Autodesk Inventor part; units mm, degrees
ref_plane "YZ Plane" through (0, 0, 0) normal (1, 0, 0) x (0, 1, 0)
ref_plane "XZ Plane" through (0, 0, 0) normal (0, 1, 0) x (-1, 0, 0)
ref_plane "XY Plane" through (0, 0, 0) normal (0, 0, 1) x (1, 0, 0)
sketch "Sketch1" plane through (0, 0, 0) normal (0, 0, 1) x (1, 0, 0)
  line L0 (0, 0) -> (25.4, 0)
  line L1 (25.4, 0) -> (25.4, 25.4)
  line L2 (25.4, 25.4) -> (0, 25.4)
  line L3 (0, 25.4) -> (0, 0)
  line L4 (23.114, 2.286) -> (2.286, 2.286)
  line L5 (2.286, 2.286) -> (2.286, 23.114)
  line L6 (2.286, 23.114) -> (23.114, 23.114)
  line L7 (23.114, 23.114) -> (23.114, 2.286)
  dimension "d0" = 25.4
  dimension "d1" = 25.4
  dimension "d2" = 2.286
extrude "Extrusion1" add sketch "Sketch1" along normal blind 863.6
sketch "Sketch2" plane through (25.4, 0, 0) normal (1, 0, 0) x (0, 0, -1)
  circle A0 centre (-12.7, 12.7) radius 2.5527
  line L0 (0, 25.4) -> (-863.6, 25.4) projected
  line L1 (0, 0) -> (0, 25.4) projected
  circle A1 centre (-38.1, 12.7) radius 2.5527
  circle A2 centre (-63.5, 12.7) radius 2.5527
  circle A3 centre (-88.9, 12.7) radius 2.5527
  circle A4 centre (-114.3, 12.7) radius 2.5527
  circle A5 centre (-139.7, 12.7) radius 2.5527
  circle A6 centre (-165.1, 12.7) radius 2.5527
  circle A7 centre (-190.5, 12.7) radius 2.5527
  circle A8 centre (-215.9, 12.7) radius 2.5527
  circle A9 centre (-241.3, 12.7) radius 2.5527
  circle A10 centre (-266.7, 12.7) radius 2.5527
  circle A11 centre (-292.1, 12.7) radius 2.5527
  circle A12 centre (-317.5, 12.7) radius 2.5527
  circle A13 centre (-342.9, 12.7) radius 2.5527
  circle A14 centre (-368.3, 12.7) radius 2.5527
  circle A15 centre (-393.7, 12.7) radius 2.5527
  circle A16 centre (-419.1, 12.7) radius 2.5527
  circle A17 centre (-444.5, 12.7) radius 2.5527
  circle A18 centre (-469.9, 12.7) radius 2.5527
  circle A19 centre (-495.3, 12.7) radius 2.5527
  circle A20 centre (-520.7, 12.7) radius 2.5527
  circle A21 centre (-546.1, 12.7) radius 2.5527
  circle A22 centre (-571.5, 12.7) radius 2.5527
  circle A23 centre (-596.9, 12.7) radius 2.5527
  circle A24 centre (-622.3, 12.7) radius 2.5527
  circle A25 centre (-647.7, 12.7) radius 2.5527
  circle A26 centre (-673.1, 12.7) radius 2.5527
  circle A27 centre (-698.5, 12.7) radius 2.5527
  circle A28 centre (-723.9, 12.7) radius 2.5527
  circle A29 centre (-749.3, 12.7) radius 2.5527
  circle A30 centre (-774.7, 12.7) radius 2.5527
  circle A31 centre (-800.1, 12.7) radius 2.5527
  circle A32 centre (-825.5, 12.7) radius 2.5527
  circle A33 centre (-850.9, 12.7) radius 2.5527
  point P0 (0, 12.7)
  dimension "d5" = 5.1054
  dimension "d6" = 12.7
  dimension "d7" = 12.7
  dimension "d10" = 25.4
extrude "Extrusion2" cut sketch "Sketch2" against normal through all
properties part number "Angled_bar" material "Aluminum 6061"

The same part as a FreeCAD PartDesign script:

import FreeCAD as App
import Part
import Sketcher
Q = App.Units.Quantity


def add_polygon(sketch, points):
    """Adds a closed chain of lines whose ends are joined by coincident constraints."""
    first, n = sketch.GeometryCount, len(points)
    for a, b in zip(points, points[1:] + points[:1]):
        sketch.addGeometry(Part.LineSegment(App.Vector(*a, 0), App.Vector(*b, 0)), False)
    for i in range(n):
        sketch.addConstraint(Sketcher.Constraint("Coincident", first + i, 2, first + (i + 1) % n, 1))

doc = App.newDocument("Part")
body = doc.addObject("PartDesign::Body", "Body")

# Sketch on XY plane
sketch1 = doc.addObject("Sketcher::SketchObject", "Sketch")
body.addObject(sketch1)
sketch1.AttachmentSupport = (doc.XY_Plane, [""])
sketch1.MapMode = "FlatFace"
add_polygon(sketch1, [(0, 25), (0, 0), (25, 0), (25, 25)])  # lines 0-3
add_polygon(sketch1, [(23, 23), (23, 2), (2, 2), (2, 23)])  # lines 4-7
sketch1.addConstraint(Sketcher.Constraint("Vertical", 0))
sketch1.addConstraint(Sketcher.Constraint("Horizontal", 1))
sketch1.addConstraint(Sketcher.Constraint("Vertical", 2))
sketch1.addConstraint(Sketcher.Constraint("Horizontal", 3))
sketch1.addConstraint(Sketcher.Constraint("Vertical", 4))
sketch1.addConstraint(Sketcher.Constraint("Horizontal", 5))
sketch1.addConstraint(Sketcher.Constraint("Vertical", 6))
sketch1.addConstraint(Sketcher.Constraint("Horizontal", 7))
sketch1.addConstraint(Sketcher.Constraint("Coincident", 0, 2, -1, 1))
sketch1.addConstraint(Sketcher.Constraint("Equal", 3, 0))
sketch1.addConstraint(Sketcher.Constraint("Equal", 7, 4))
sketch1.addConstraint(Sketcher.Constraint("DistanceX", 1, 1, 1, 2, Q("1 in")))
sketch1.addConstraint(Sketcher.Constraint("DistanceY", -1, 1, 4, 2, Q("0.09 in")))
sketch1.addConstraint(Sketcher.Constraint("DistanceX", -1, 1, 5, 2, Q("0.09 in")))
sketch1.addConstraint(Sketcher.Constraint("DistanceX", 4, 2, 1, 2, Q("0.09 in")))
pad1 = doc.addObject("PartDesign::Pad", "Pad")
body.addObject(pad1)
pad1.Profile = sketch1
pad1.Length = Q("34 in")

# Sketch on YZ plane
sketch2 = doc.addObject("Sketcher::SketchObject", "Sketch001")
body.addObject(sketch2)
sketch2.AttachmentSupport = (doc.YZ_Plane, [""])
sketch2.MapMode = "FlatFace"
sketch2.AttachmentOffset = App.Placement(App.Vector(0, 0, 1 * 25.4), App.Rotation())
sketch2.addGeometry(Part.Circle(App.Vector(12.7, 12.7, 0), App.Vector(0, 0, 1), 2.6), False)
sketch2.addGeometry(Part.Circle(App.Vector(12.7, 38.1, 0), App.Vector(0, 0, 1), 2.6), False)
sketch2.addGeometry(Part.Circle(App.Vector(12.7, 63.5, 0), App.Vector(0, 0, 1), 2.6), False)
sketch2.addGeometry(Part.Circle(App.Vector(12.7, 88.9, 0), App.Vector(0, 0, 1), 2.6), False)
sketch2.addGeometry(Part.Circle(App.Vector(12.7, 114.3, 0), App.Vector(0, 0, 1), 2.6), False)
sketch2.addGeometry(Part.Circle(App.Vector(12.7, 139.7, 0), App.Vector(0, 0, 1), 2.6), False)
sketch2.addGeometry(Part.Circle(App.Vector(12.7, 165.1, 0), App.Vector(0, 0, 1), 2.6), False)
sketch2.addGeometry(Part.Circle(App.Vector(12.7, 190.5, 0), App.Vector(0, 0, 1), 2.6), False)
sketch2.addGeometry(Part.Circle(App.Vector(12.7, 215.9, 0), App.Vector(0, 0, 1), 2.6), False)
sketch2.addGeometry(Part.Circle(App.Vector(12.7, 241.3, 0), App.Vector(0, 0, 1), 2.6), False)
sketch2.addGeometry(Part.Circle(App.Vector(12.7, 266.7, 0), App.Vector(0, 0, 1), 2.6), False)
sketch2.addGeometry(Part.Circle(App.Vector(12.7, 292.1, 0), App.Vector(0, 0, 1), 2.6), False)
sketch2.addGeometry(Part.Circle(App.Vector(12.7, 317.5, 0), App.Vector(0, 0, 1), 2.6), False)
sketch2.addGeometry(Part.Circle(App.Vector(12.7, 342.9, 0), App.Vector(0, 0, 1), 2.6), False)
sketch2.addGeometry(Part.Circle(App.Vector(12.7, 368.3, 0), App.Vector(0, 0, 1), 2.6), False)
sketch2.addGeometry(Part.Circle(App.Vector(12.7, 393.7, 0), App.Vector(0, 0, 1), 2.6), False)
sketch2.addGeometry(Part.Circle(App.Vector(12.7, 419.1, 0), App.Vector(0, 0, 1), 2.6), False)
sketch2.addGeometry(Part.Circle(App.Vector(12.7, 444.5, 0), App.Vector(0, 0, 1), 2.6), False)
sketch2.addGeometry(Part.Circle(App.Vector(12.7, 469.9, 0), App.Vector(0, 0, 1), 2.6), False)
sketch2.addGeometry(Part.Circle(App.Vector(12.7, 495.3, 0), App.Vector(0, 0, 1), 2.6), False)
sketch2.addGeometry(Part.Circle(App.Vector(12.7, 520.7, 0), App.Vector(0, 0, 1), 2.6), False)
sketch2.addGeometry(Part.Circle(App.Vector(12.7, 546.1, 0), App.Vector(0, 0, 1), 2.6), False)
sketch2.addGeometry(Part.Circle(App.Vector(12.7, 571.5, 0), App.Vector(0, 0, 1), 2.6), False)
sketch2.addGeometry(Part.Circle(App.Vector(12.7, 596.9, 0), App.Vector(0, 0, 1), 2.6), False)
sketch2.addGeometry(Part.Circle(App.Vector(12.7, 622.3, 0), App.Vector(0, 0, 1), 2.6), False)
sketch2.addGeometry(Part.Circle(App.Vector(12.7, 647.7, 0), App.Vector(0, 0, 1), 2.6), False)
sketch2.addGeometry(Part.Circle(App.Vector(12.7, 673.1, 0), App.Vector(0, 0, 1), 2.6), False)
sketch2.addGeometry(Part.Circle(App.Vector(12.7, 698.5, 0), App.Vector(0, 0, 1), 2.6), False)
sketch2.addGeometry(Part.Circle(App.Vector(12.7, 723.9, 0), App.Vector(0, 0, 1), 2.6), False)
sketch2.addGeometry(Part.Circle(App.Vector(12.7, 749.3, 0), App.Vector(0, 0, 1), 2.6), False)
sketch2.addGeometry(Part.Circle(App.Vector(12.7, 774.7, 0), App.Vector(0, 0, 1), 2.6), False)
sketch2.addGeometry(Part.Circle(App.Vector(12.7, 800.1, 0), App.Vector(0, 0, 1), 2.6), False)
sketch2.addGeometry(Part.Circle(App.Vector(12.7, 825.5, 0), App.Vector(0, 0, 1), 2.6), False)
sketch2.addGeometry(Part.Circle(App.Vector(12.7, 850.9, 0), App.Vector(0, 0, 1), 2.6), False)
sketch2.addConstraint(Sketcher.Constraint("Equal", 0, 1))
sketch2.addConstraint(Sketcher.Constraint("Equal", 1, 2))
sketch2.addConstraint(Sketcher.Constraint("Equal", 2, 3))
sketch2.addConstraint(Sketcher.Constraint("Equal", 3, 4))
sketch2.addConstraint(Sketcher.Constraint("Equal", 4, 5))
sketch2.addConstraint(Sketcher.Constraint("Equal", 5, 6))
sketch2.addConstraint(Sketcher.Constraint("Equal", 6, 7))
sketch2.addConstraint(Sketcher.Constraint("Equal", 7, 8))
sketch2.addConstraint(Sketcher.Constraint("Equal", 8, 9))
sketch2.addConstraint(Sketcher.Constraint("Equal", 9, 10))
sketch2.addConstraint(Sketcher.Constraint("Equal", 10, 11))
sketch2.addConstraint(Sketcher.Constraint("Equal", 11, 12))
sketch2.addConstraint(Sketcher.Constraint("Equal", 12, 13))
sketch2.addConstraint(Sketcher.Constraint("Equal", 13, 14))
sketch2.addConstraint(Sketcher.Constraint("Equal", 14, 15))
sketch2.addConstraint(Sketcher.Constraint("Equal", 15, 16))
sketch2.addConstraint(Sketcher.Constraint("Equal", 16, 17))
sketch2.addConstraint(Sketcher.Constraint("Equal", 17, 18))
sketch2.addConstraint(Sketcher.Constraint("Equal", 18, 19))
sketch2.addConstraint(Sketcher.Constraint("Equal", 19, 20))
sketch2.addConstraint(Sketcher.Constraint("Equal", 20, 21))
sketch2.addConstraint(Sketcher.Constraint("Equal", 21, 22))
sketch2.addConstraint(Sketcher.Constraint("Equal", 22, 23))
sketch2.addConstraint(Sketcher.Constraint("Equal", 23, 24))
sketch2.addConstraint(Sketcher.Constraint("Equal", 24, 25))
sketch2.addConstraint(Sketcher.Constraint("Equal", 25, 26))
sketch2.addConstraint(Sketcher.Constraint("Equal", 26, 27))
sketch2.addConstraint(Sketcher.Constraint("Equal", 27, 28))
sketch2.addConstraint(Sketcher.Constraint("Equal", 28, 29))
sketch2.addConstraint(Sketcher.Constraint("Equal", 29, 30))
sketch2.addConstraint(Sketcher.Constraint("Equal", 30, 31))
sketch2.addConstraint(Sketcher.Constraint("Equal", 31, 32))
sketch2.addConstraint(Sketcher.Constraint("Equal", 32, 33))
sketch2.addConstraint(Sketcher.Constraint("Vertical", 0, 3, 1, 3))
sketch2.addConstraint(Sketcher.Constraint("Vertical", 1, 3, 2, 3))
sketch2.addConstraint(Sketcher.Constraint("Vertical", 2, 3, 3, 3))
sketch2.addConstraint(Sketcher.Constraint("Vertical", 3, 3, 4, 3))
sketch2.addConstraint(Sketcher.Constraint("Vertical", 4, 3, 5, 3))
sketch2.addConstraint(Sketcher.Constraint("Vertical", 5, 3, 6, 3))
sketch2.addConstraint(Sketcher.Constraint("Vertical", 6, 3, 7, 3))
sketch2.addConstraint(Sketcher.Constraint("Vertical", 7, 3, 8, 3))
sketch2.addConstraint(Sketcher.Constraint("Vertical", 8, 3, 9, 3))
sketch2.addConstraint(Sketcher.Constraint("Vertical", 9, 3, 10, 3))
sketch2.addConstraint(Sketcher.Constraint("Vertical", 10, 3, 11, 3))
sketch2.addConstraint(Sketcher.Constraint("Vertical", 11, 3, 12, 3))
sketch2.addConstraint(Sketcher.Constraint("Vertical", 12, 3, 13, 3))
sketch2.addConstraint(Sketcher.Constraint("Vertical", 13, 3, 14, 3))
sketch2.addConstraint(Sketcher.Constraint("Vertical", 14, 3, 15, 3))
sketch2.addConstraint(Sketcher.Constraint("Vertical", 15, 3, 16, 3))
sketch2.addConstraint(Sketcher.Constraint("Vertical", 16, 3, 17, 3))
sketch2.addConstraint(Sketcher.Constraint("Vertical", 17, 3, 18, 3))
sketch2.addConstraint(Sketcher.Constraint("Vertical", 18, 3, 19, 3))
sketch2.addConstraint(Sketcher.Constraint("Vertical", 19, 3, 20, 3))
sketch2.addConstraint(Sketcher.Constraint("Vertical", 20, 3, 21, 3))
sketch2.addConstraint(Sketcher.Constraint("Vertical", 21, 3, 22, 3))
sketch2.addConstraint(Sketcher.Constraint("Vertical", 22, 3, 23, 3))
sketch2.addConstraint(Sketcher.Constraint("Vertical", 23, 3, 24, 3))
sketch2.addConstraint(Sketcher.Constraint("Vertical", 24, 3, 25, 3))
sketch2.addConstraint(Sketcher.Constraint("Vertical", 25, 3, 26, 3))
sketch2.addConstraint(Sketcher.Constraint("Vertical", 26, 3, 27, 3))
sketch2.addConstraint(Sketcher.Constraint("Vertical", 27, 3, 28, 3))
sketch2.addConstraint(Sketcher.Constraint("Vertical", 28, 3, 29, 3))
sketch2.addConstraint(Sketcher.Constraint("Vertical", 29, 3, 30, 3))
sketch2.addConstraint(Sketcher.Constraint("Vertical", 30, 3, 31, 3))
sketch2.addConstraint(Sketcher.Constraint("Vertical", 31, 3, 32, 3))
sketch2.addConstraint(Sketcher.Constraint("Vertical", 32, 3, 33, 3))
sketch2.addConstraint(Sketcher.Constraint("Diameter", 0, Q("0.201 in")))
sketch2.addConstraint(Sketcher.Constraint("DistanceY", 0, 3, 1, 3, Q("1 in")))
sketch2.addConstraint(Sketcher.Constraint("DistanceY", 1, 3, 2, 3, Q("1 in")))
sketch2.addConstraint(Sketcher.Constraint("DistanceY", 2, 3, 3, 3, Q("1 in")))
sketch2.addConstraint(Sketcher.Constraint("DistanceY", 3, 3, 4, 3, Q("1 in")))
sketch2.addConstraint(Sketcher.Constraint("DistanceY", 4, 3, 5, 3, Q("1 in")))
sketch2.addConstraint(Sketcher.Constraint("DistanceY", 5, 3, 6, 3, Q("1 in")))
sketch2.addConstraint(Sketcher.Constraint("DistanceY", 6, 3, 7, 3, Q("1 in")))
sketch2.addConstraint(Sketcher.Constraint("DistanceY", 7, 3, 8, 3, Q("1 in")))
sketch2.addConstraint(Sketcher.Constraint("DistanceY", 8, 3, 9, 3, Q("1 in")))
sketch2.addConstraint(Sketcher.Constraint("DistanceY", 9, 3, 10, 3, Q("1 in")))
sketch2.addConstraint(Sketcher.Constraint("DistanceY", 10, 3, 11, 3, Q("1 in")))
sketch2.addConstraint(Sketcher.Constraint("DistanceY", 11, 3, 12, 3, Q("1 in")))
sketch2.addConstraint(Sketcher.Constraint("DistanceY", 12, 3, 13, 3, Q("1 in")))
sketch2.addConstraint(Sketcher.Constraint("DistanceY", 13, 3, 14, 3, Q("1 in")))
sketch2.addConstraint(Sketcher.Constraint("DistanceY", 14, 3, 15, 3, Q("1 in")))
sketch2.addConstraint(Sketcher.Constraint("DistanceY", 15, 3, 16, 3, Q("1 in")))
sketch2.addConstraint(Sketcher.Constraint("DistanceY", 16, 3, 17, 3, Q("1 in")))
sketch2.addConstraint(Sketcher.Constraint("DistanceY", 17, 3, 18, 3, Q("1 in")))
sketch2.addConstraint(Sketcher.Constraint("DistanceY", 18, 3, 19, 3, Q("1 in")))
sketch2.addConstraint(Sketcher.Constraint("DistanceY", 19, 3, 20, 3, Q("1 in")))
sketch2.addConstraint(Sketcher.Constraint("DistanceY", 20, 3, 21, 3, Q("1 in")))
sketch2.addConstraint(Sketcher.Constraint("DistanceY", 21, 3, 22, 3, Q("1 in")))
sketch2.addConstraint(Sketcher.Constraint("DistanceY", 22, 3, 23, 3, Q("1 in")))
sketch2.addConstraint(Sketcher.Constraint("DistanceY", 23, 3, 24, 3, Q("1 in")))
sketch2.addConstraint(Sketcher.Constraint("DistanceY", 24, 3, 25, 3, Q("1 in")))
sketch2.addConstraint(Sketcher.Constraint("DistanceY", 25, 3, 26, 3, Q("1 in")))
sketch2.addConstraint(Sketcher.Constraint("DistanceY", 26, 3, 27, 3, Q("1 in")))
sketch2.addConstraint(Sketcher.Constraint("DistanceY", 27, 3, 28, 3, Q("1 in")))
sketch2.addConstraint(Sketcher.Constraint("DistanceY", 28, 3, 29, 3, Q("1 in")))
sketch2.addConstraint(Sketcher.Constraint("DistanceY", 29, 3, 30, 3, Q("1 in")))
sketch2.addConstraint(Sketcher.Constraint("DistanceY", 30, 3, 31, 3, Q("1 in")))
sketch2.addConstraint(Sketcher.Constraint("DistanceY", 31, 3, 32, 3, Q("1 in")))
sketch2.addConstraint(Sketcher.Constraint("DistanceY", 32, 3, 33, 3, Q("1 in")))
sketch2.addConstraint(Sketcher.Constraint("DistanceX", -1, 1, 0, 3, Q("0.5 in")))
sketch2.addConstraint(Sketcher.Constraint("DistanceY", -1, 1, 0, 3, Q("0.5 in")))
pocket1 = doc.addObject("PartDesign::Pocket", "Pocket")
body.addObject(pocket1)
pocket1.Profile = sketch2
pocket1.Type = "ThroughAll"

doc.recompute()
